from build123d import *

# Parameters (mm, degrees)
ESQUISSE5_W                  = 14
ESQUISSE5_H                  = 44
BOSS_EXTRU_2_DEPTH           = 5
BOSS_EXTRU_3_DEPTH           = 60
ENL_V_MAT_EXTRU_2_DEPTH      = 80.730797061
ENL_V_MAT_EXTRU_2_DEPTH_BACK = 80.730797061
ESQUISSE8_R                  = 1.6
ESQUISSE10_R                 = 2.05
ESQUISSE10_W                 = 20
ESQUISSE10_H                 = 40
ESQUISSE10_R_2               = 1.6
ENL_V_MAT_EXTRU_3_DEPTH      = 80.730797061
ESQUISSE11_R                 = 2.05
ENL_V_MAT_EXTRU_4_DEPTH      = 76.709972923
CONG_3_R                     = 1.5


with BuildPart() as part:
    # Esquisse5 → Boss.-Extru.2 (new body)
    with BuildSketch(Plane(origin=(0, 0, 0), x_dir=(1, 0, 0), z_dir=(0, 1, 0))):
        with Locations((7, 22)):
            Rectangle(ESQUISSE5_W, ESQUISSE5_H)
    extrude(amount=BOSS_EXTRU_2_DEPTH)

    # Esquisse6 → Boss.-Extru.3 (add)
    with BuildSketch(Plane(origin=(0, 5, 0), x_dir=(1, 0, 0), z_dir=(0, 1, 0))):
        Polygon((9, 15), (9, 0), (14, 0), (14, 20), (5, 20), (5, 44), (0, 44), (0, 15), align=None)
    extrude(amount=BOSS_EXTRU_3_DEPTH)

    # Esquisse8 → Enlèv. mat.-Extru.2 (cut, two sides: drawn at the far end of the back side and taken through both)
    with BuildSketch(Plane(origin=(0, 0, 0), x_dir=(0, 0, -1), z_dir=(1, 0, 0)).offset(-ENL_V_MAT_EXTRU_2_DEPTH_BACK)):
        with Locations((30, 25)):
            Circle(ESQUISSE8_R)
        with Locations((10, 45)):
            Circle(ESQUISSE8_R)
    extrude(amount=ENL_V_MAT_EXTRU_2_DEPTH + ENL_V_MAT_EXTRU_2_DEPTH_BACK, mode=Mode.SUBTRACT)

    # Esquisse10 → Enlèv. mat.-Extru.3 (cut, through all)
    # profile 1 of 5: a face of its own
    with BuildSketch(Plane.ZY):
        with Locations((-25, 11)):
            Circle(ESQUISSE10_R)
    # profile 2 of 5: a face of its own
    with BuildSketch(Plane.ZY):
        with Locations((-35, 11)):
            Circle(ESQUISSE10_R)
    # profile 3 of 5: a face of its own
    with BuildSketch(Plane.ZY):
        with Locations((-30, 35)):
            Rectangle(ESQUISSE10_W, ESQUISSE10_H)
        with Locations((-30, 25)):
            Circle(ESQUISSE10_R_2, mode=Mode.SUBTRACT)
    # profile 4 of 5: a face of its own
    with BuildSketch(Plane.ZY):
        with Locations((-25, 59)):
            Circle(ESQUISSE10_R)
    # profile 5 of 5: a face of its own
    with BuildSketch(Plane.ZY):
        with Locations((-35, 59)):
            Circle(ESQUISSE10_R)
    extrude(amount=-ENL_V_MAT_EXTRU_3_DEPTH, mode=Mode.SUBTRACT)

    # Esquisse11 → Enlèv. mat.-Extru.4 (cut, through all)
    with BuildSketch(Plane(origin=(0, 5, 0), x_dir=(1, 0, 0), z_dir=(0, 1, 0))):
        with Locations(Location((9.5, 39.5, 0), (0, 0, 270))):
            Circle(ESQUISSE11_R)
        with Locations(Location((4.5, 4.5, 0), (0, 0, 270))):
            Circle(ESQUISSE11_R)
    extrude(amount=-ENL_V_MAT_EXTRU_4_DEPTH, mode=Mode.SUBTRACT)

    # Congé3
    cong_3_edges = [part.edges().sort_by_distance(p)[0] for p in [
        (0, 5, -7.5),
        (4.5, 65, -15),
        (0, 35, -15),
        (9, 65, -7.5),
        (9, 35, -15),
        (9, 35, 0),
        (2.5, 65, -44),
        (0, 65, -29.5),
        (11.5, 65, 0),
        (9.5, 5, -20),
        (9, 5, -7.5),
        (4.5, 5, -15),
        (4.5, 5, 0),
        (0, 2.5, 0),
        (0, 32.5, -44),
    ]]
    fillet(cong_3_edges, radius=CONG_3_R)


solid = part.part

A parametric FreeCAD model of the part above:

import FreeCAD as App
import Part
import Sketcher


def edges_at(feature, points):
    """Names of the edges that pass closest to the given points."""
    edges = feature.Shape.Edges
    near = lambda p: min(range(len(edges)), key=lambda i: edges[i].distToShape(Part.Vertex(*p))[0])
    return sorted({f"Edge{near(p) + 1}" for p in points})


def add_polygon(sketch, points):
    """Adds a closed chain of lines whose ends are joined by coincident constraints."""
    first, n = sketch.GeometryCount, len(points)
    for a, b in zip(points, points[1:] + points[:1]):
        sketch.addGeometry(Part.LineSegment(App.Vector(*a, 0), App.Vector(*b, 0)), False)
    for i in range(n):
        sketch.addConstraint(Sketcher.Constraint("Coincident", first + i, 2, first + (i + 1) % n, 1))

doc = App.newDocument("Part")
params = doc.addObject("Spreadsheet::Sheet", "Params")
for row, (alias, value) in enumerate([
    ("sketch1_width", "14 mm"),
    ("sketch1_height", "44 mm"),
    ("pad1_length", "5 mm"),
    ("sketch2_width", "5 mm"),
    ("sketch2_width2", "9 mm"),
    ("sketch2_height", "15 mm"),
    ("sketch2_height2", "20 mm"),
    ("sketch2_height3", "24 mm"),
    ("pad2_length", "60 mm"),
    ("sketch3_diameter", "3.2 mm"),
    ("sketch4_diameter", "4.1 mm"),
    ("sketch4_diameter2", "3.2 mm"),
    ("sketch4_width", "40 mm"),
    ("sketch4_height", "20 mm"),
    ("pocket2_length", "80.730797 mm"),
    ("sketch5_diameter", "4.1 mm"),
    ("fillet_radius", "1.5 mm"),
], start=1):
    params.set(f"A{row}", alias)
    params.set(f"B{row}", "=" + value)
    params.setAlias(f"B{row}", alias)

body = doc.addObject("PartDesign::Body", "Body")

# Sketch on XZ plane
sketch1 = body.newObject("Sketcher::SketchObject", "Sketch")
sketch1.AttachmentSupport = (doc.getObject("XZ_Plane"), [""])
sketch1.MapMode = "FlatFace"
add_polygon(sketch1, [(0, -44), (0, 0), (14, 0), (14, -44)])  # lines 0-3
sketch1.addConstraint([
    Sketcher.Constraint("Vertical", 0),
    Sketcher.Constraint("Horizontal", 1),
    Sketcher.Constraint("Vertical", 2),
    Sketcher.Constraint("Horizontal", 3),
    Sketcher.Constraint("Coincident", 0, 2, -1, 1),
    Sketcher.Constraint("DistanceX", 1, 1, 1, 2, 14.0),
    Sketcher.Constraint("DistanceY", 0, 1, 0, 2, 44.0),
])
sketch1.setExpression("Constraints[9]", "Params.sketch1_width")
sketch1.setExpression("Constraints[10]", "Params.sketch1_height")
pad1 = body.newObject("PartDesign::Pad", "Pad")
pad1.Profile = sketch1
pad1.setExpression("Length", "Params.pad1_length")
pad1.Reversed = True

# Sketch on XZ plane
sketch2 = body.newObject("Sketcher::SketchObject", "Sketch001")
sketch2.AttachmentSupport = (doc.getObject("XZ_Plane"), [""])
sketch2.MapMode = "FlatFace"
sketch2.AttachmentOffset = App.Placement(App.Vector(0, 0, -5), App.Rotation())
add_polygon(sketch2, [(9, -15), (9, 0), (14, 0), (14, -20), (5, -20), (5, -44), (0, -44), (0, -15)])  # lines 0-7
sketch2.addConstraint([
    Sketcher.Constraint("Vertical", 0),
    Sketcher.Constraint("Horizontal", 1),
    Sketcher.Constraint("Vertical", 2),
    Sketcher.Constraint("Horizontal", 3),
    Sketcher.Constraint("Vertical", 4),
    Sketcher.Constraint("Horizontal", 5),
    Sketcher.Constraint("Vertical", 6),
    Sketcher.Constraint("Horizontal", 7),
    Sketcher.Constraint("PointOnObject", 0, 2, -1),
    Sketcher.Constraint("PointOnObject", 5, 2, -2),
    Sketcher.Constraint("Equal", 1, 5),
    Sketcher.Constraint("DistanceX", 1, 1, 1, 2, 5.0),
    Sketcher.Constraint("DistanceX", 3, 2, 3, 1, 9.0),
    Sketcher.Constraint("DistanceY", 0, 1, 0, 2, 15.0),
    Sketcher.Constraint("DistanceY", 2, 2, 2, 1, 20.0),
    Sketcher.Constraint("DistanceY", 4, 2, 4, 1, 24.0),
])
sketch2.setExpression("Constraints[19]", "Params.sketch2_width")
sketch2.setExpression("Constraints[20]", "Params.sketch2_width2")
sketch2.setExpression("Constraints[21]", "Params.sketch2_height")
sketch2.setExpression("Constraints[22]", "Params.sketch2_height2")
sketch2.setExpression("Constraints[23]", "Params.sketch2_height3")
pad2 = body.newObject("PartDesign::Pad", "Pad001")
pad2.Profile = sketch2
pad2.setExpression("Length", "Params.pad2_length")
pad2.Reversed = True

# Sketch on YZ plane
sketch3 = body.newObject("Sketcher::SketchObject", "Sketch002")
sketch3.AttachmentSupport = (doc.getObject("YZ_Plane"), [""])
sketch3.MapMode = "FlatFace"
sketch3.addGeometry([
    Part.Circle(App.Vector(25, -30, 0), App.Vector(0, 0, 1), 1.6),
    Part.Circle(App.Vector(45, -10, 0), App.Vector(0, 0, 1), 1.6),
], False)
sketch3.addConstraint([
    Sketcher.Constraint("Equal", 0, 1),
    Sketcher.Constraint("Diameter", 0, 3.2),
    Sketcher.Constraint("DistanceX", -1, 1, 0, 3, 25.0),
    Sketcher.Constraint("DistanceY", 0, 3, -1, 1, 30.0),
    Sketcher.Constraint("DistanceX", -1, 1, 1, 3, 45.0),
    Sketcher.Constraint("DistanceY", 1, 3, -1, 1, 10.0),
])
sketch3.setExpression("Constraints[1]", "Params.sketch3_diameter")
pocket1 = body.newObject("PartDesign::Pocket", "Pocket")
pocket1.Profile = sketch3
pocket1.Type = "ThroughAll"
pocket1.Midplane = True

# Sketch on YZ plane
sketch4 = body.newObject("Sketcher::SketchObject", "Sketch003")
sketch4.AttachmentSupport = (doc.getObject("YZ_Plane"), [""])
sketch4.MapMode = "FlatFace"
sketch4.addGeometry(Part.Circle(App.Vector(11, -25, 0), App.Vector(0, 0, 1), 2), False)  # 0
sketch4.addGeometry(Part.Circle(App.Vector(11, -35, 0), App.Vector(0, 0, 1), 2), False)  # 1
add_polygon(sketch4, [(55, -40), (15, -40), (15, -20), (55, -20)])  # lines 2-5
sketch4.addGeometry(Part.Circle(App.Vector(25, -30, 0), App.Vector(0, 0, 1), 1.6), False)  # 6
sketch4.addGeometry(Part.Circle(App.Vector(59, -25, 0), App.Vector(0, 0, 1), 2), False)  # 7
sketch4.addGeometry(Part.Circle(App.Vector(59, -35, 0), App.Vector(0, 0, 1), 2), False)  # 8
sketch4.addConstraint([
    Sketcher.Constraint("Horizontal", 2),
    Sketcher.Constraint("Vertical", 3),
    Sketcher.Constraint("Horizontal", 4),
    Sketcher.Constraint("Vertical", 5),
    Sketcher.Constraint("Equal", 0, 1),
    Sketcher.Constraint("Equal", 1, 7),
    Sketcher.Constraint("Equal", 7, 8),
    Sketcher.Constraint("Horizontal", 0, 3, 7, 3),
    Sketcher.Constraint("Horizontal", 1, 3, 8, 3),
    Sketcher.Constraint("Vertical", 0, 3, 1, 3),
    Sketcher.Constraint("Vertical", 7, 3, 8, 3),
    Sketcher.Constraint("Diameter", 0, 4.1),
    Sketcher.Constraint("Diameter", 6, 3.2),
    Sketcher.Constraint("DistanceX", 2, 2, 2, 1, 40.0),
    Sketcher.Constraint("DistanceY", 3, 1, 3, 2, 20.0),
    Sketcher.Constraint("DistanceX", -1, 1, 0, 3, 11.0),
    Sketcher.Constraint("DistanceY", 0, 3, -1, 1, 25.0),
    Sketcher.Constraint("DistanceY", 1, 3, -1, 1, 35.0),
    Sketcher.Constraint("DistanceX", -1, 1, 6, 3, 25.0),
    Sketcher.Constraint("DistanceY", 6, 3, -1, 1, 30.0),
    Sketcher.Constraint("DistanceX", -1, 1, 7, 3, 59.0),
    Sketcher.Constraint("DistanceX", -1, 1, 2, 2, 15.0),
    Sketcher.Constraint("DistanceY", 2, 2, -1, 1, 40.0),
])
sketch4.setExpression("Constraints[15]", "Params.sketch4_diameter")
sketch4.setExpression("Constraints[16]", "Params.sketch4_diameter2")
sketch4.setExpression("Constraints[17]", "Params.sketch4_width")
sketch4.setExpression("Constraints[18]", "Params.sketch4_height")
pocket2 = body.newObject("PartDesign::Pocket", "Pocket001")
pocket2.Profile = sketch4
pocket2.setExpression("Length", "Params.pocket2_length")
pocket2.Reversed = True

# Sketch on XZ plane
sketch5 = body.newObject("Sketcher::SketchObject", "Sketch004")
sketch5.AttachmentSupport = (doc.getObject("XZ_Plane"), [""])
sketch5.MapMode = "FlatFace"
sketch5.AttachmentOffset = App.Placement(App.Vector(0, 0, -5), App.Rotation())
sketch5.addGeometry([
    Part.Circle(App.Vector(9.5, -39.5, 0), App.Vector(0, 0, 1), 2),
    Part.Circle(App.Vector(4.5, -4.5, 0), App.Vector(0, 0, 1), 2),
], False)
sketch5.addConstraint([
    Sketcher.Constraint("Equal", 0, 1),
    Sketcher.Constraint("Diameter", 0, 4.1),
    Sketcher.Constraint("DistanceX", 1, 3, 0, 3, 5.0),
    Sketcher.Constraint("DistanceY", 0, 3, 1, 3, 35.0),
    Sketcher.Constraint("DistanceX", -1, 1, 0, 3, 9.5),
    Sketcher.Constraint("DistanceY", 0, 3, -1, 1, 39.5),
])
sketch5.setExpression("Constraints[1]", "Params.sketch5_diameter")
pocket3 = body.newObject("PartDesign::Pocket", "Pocket002")
pocket3.Profile = sketch5
pocket3.Type = "ThroughAll"
pocket3.Reversed = True
doc.recompute()

fillet = body.newObject("PartDesign::Fillet", "Fillet")
fillet.Base = (pocket3, edges_at(pocket3, [
    (0, 5, -7.5),
    (4.5, 65, -15),
    (0, 35, -15),
    (9, 65, -7.5),
    (9, 35, -15),
    (9, 35, 0),
    (2.5, 65, -44),
    (0, 65, -29.5),
    (11.5, 65, 0),
    (9.5, 5, -20),
    (9, 5, -7.5),
    (4.5, 5, -15),
    (4.5, 5, 0),
    (0, 2.5, 0),
    (0, 32.5, -44),
]))
fillet.setExpression("Radius", "Params.fillet_radius")

doc.recompute()
